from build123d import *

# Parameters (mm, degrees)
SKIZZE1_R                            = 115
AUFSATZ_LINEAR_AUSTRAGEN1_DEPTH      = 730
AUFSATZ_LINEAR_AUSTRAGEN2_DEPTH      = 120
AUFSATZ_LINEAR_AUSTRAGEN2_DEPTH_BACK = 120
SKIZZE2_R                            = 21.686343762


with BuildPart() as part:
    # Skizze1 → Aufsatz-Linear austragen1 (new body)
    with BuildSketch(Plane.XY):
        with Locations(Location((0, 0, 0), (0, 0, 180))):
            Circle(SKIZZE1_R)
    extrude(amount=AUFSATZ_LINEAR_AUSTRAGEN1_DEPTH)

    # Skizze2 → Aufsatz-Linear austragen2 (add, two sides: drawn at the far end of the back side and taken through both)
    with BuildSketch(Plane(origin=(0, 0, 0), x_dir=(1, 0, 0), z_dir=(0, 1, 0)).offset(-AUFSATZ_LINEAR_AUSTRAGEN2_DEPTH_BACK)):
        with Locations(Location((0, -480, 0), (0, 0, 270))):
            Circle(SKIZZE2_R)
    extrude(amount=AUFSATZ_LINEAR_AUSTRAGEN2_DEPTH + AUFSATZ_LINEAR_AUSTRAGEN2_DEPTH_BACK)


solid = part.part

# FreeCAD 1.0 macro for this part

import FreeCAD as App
import Part
import Sketcher
Q = App.Units.Quantity

doc = App.newDocument("Part")
body = doc.addObject("PartDesign::Body", "Body")

# Sketch on XY plane
sketch1 = body.newObject("Sketcher::SketchObject", "Sketch")
sketch1.AttachmentSupport = (doc.getObject("XY_Plane"), [""])
sketch1.MapMode = "FlatFace"
sketch1.addGeometry(Part.Circle(App.Vector(0, 0, 0), App.Vector(0, 0, 1), 115), False)
sketch1.addConstraint([
    Sketcher.Constraint("Coincident", 0, 3, -1, 1),
    Sketcher.Constraint("Diameter", 0, Q("230 mm")),
])
pad1 = body.newObject("PartDesign::Pad", "Pad")
pad1.Profile = sketch1
pad1.Length = 730

# Sketch on XZ plane
sketch2 = body.newObject("Sketcher::SketchObject", "Sketch001")
sketch2.AttachmentSupport = (doc.getObject("XZ_Plane"), [""])
sketch2.MapMode = "FlatFace"
sketch2.addGeometry(Part.Circle(App.Vector(0, 480, 0), App.Vector(0, 0, 1), 22), False)
sketch2.addConstraint([
    Sketcher.Constraint("PointOnObject", 0, 3, -2),
    Sketcher.Constraint("DistanceY", -1, 1, 0, 3, Q("480 mm")),
    Sketcher.Constraint("Diameter", 0, Q("43.372688 mm")),
])
pad2 = body.newObject("PartDesign::Pad", "Pad001")
pad2.Profile = sketch2
pad2.Type = "TwoLengths"
pad2.Length = 120
pad2.Length2 = 120
pad2.Reversed = True

doc.recompute()
